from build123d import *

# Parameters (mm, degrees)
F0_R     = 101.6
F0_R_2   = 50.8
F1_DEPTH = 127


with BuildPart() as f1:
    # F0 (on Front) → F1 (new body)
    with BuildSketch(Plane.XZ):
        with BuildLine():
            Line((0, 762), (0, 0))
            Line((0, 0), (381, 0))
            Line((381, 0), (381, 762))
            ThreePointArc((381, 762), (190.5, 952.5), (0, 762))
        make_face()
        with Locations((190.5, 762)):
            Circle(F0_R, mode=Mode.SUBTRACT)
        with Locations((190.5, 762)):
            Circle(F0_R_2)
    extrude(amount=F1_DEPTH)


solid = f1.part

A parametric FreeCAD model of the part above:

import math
import FreeCAD as App
import Part
import Sketcher
Q = App.Units.Quantity

doc = App.newDocument("Part")
body = doc.addObject("PartDesign::Body", "Body")
body.AllowCompound = True

# Sketch on XZ plane
sketch1 = body.newObject("Sketcher::SketchObject", "Sketch")
sketch1.AttachmentSupport = (doc.getObject("XZ_Plane"), [""])
sketch1.MapMode = "FlatFace"
sketch1.addGeometry([
    Part.LineSegment(App.Vector(0, 762, 0), App.Vector(0, 0, 0)),  # 0
    Part.LineSegment(App.Vector(0, 0, 0), App.Vector(381, 0, 0)),  # 1
    Part.LineSegment(App.Vector(381, 0, 0), App.Vector(381, 762, 0)),  # 2
    Part.ArcOfCircle(Part.Circle(App.Vector(190.5, 762, 0), App.Vector(0, 0, 1), 190.5), math.radians(0), math.radians(180)),  # 3
    Part.Circle(App.Vector(190.5, 762, 0), App.Vector(0, 0, 1), 101.6),  # 4
    Part.Circle(App.Vector(190.5, 762, 0), App.Vector(0, 0, 1), 50.8),  # 5
], False)
sketch1.addConstraint([
    Sketcher.Constraint("Coincident", 0, 2, 1, 1),
    Sketcher.Constraint("Coincident", 1, 2, 2, 1),
    Sketcher.Constraint("Tangent", 2, 2, 3, 1),
    Sketcher.Constraint("Tangent", 3, 2, 0, 1),
    Sketcher.Constraint("Vertical", 0),
    Sketcher.Constraint("Horizontal", 1),
    Sketcher.Constraint("Vertical", 2),
    Sketcher.Constraint("Coincident", 0, 2, -1, 1),
    Sketcher.Constraint("Coincident", 4, 3, 3, 3),
    Sketcher.Constraint("Coincident", 5, 3, 3, 3),
    Sketcher.Constraint("Diameter", 4, Q("8 in")),
    Sketcher.Constraint("Diameter", 5, Q("4 in")),
    Sketcher.Constraint("Radius", 3, Q("7.5 in")),
    Sketcher.Constraint("DistanceY", 0, 2, 0, 1, Q("30 in")),
])
pad1 = body.newObject("PartDesign::Pad", "Pad")
pad1.Profile = sketch1
pad1.Length = Q("5 in")

doc.recompute()
